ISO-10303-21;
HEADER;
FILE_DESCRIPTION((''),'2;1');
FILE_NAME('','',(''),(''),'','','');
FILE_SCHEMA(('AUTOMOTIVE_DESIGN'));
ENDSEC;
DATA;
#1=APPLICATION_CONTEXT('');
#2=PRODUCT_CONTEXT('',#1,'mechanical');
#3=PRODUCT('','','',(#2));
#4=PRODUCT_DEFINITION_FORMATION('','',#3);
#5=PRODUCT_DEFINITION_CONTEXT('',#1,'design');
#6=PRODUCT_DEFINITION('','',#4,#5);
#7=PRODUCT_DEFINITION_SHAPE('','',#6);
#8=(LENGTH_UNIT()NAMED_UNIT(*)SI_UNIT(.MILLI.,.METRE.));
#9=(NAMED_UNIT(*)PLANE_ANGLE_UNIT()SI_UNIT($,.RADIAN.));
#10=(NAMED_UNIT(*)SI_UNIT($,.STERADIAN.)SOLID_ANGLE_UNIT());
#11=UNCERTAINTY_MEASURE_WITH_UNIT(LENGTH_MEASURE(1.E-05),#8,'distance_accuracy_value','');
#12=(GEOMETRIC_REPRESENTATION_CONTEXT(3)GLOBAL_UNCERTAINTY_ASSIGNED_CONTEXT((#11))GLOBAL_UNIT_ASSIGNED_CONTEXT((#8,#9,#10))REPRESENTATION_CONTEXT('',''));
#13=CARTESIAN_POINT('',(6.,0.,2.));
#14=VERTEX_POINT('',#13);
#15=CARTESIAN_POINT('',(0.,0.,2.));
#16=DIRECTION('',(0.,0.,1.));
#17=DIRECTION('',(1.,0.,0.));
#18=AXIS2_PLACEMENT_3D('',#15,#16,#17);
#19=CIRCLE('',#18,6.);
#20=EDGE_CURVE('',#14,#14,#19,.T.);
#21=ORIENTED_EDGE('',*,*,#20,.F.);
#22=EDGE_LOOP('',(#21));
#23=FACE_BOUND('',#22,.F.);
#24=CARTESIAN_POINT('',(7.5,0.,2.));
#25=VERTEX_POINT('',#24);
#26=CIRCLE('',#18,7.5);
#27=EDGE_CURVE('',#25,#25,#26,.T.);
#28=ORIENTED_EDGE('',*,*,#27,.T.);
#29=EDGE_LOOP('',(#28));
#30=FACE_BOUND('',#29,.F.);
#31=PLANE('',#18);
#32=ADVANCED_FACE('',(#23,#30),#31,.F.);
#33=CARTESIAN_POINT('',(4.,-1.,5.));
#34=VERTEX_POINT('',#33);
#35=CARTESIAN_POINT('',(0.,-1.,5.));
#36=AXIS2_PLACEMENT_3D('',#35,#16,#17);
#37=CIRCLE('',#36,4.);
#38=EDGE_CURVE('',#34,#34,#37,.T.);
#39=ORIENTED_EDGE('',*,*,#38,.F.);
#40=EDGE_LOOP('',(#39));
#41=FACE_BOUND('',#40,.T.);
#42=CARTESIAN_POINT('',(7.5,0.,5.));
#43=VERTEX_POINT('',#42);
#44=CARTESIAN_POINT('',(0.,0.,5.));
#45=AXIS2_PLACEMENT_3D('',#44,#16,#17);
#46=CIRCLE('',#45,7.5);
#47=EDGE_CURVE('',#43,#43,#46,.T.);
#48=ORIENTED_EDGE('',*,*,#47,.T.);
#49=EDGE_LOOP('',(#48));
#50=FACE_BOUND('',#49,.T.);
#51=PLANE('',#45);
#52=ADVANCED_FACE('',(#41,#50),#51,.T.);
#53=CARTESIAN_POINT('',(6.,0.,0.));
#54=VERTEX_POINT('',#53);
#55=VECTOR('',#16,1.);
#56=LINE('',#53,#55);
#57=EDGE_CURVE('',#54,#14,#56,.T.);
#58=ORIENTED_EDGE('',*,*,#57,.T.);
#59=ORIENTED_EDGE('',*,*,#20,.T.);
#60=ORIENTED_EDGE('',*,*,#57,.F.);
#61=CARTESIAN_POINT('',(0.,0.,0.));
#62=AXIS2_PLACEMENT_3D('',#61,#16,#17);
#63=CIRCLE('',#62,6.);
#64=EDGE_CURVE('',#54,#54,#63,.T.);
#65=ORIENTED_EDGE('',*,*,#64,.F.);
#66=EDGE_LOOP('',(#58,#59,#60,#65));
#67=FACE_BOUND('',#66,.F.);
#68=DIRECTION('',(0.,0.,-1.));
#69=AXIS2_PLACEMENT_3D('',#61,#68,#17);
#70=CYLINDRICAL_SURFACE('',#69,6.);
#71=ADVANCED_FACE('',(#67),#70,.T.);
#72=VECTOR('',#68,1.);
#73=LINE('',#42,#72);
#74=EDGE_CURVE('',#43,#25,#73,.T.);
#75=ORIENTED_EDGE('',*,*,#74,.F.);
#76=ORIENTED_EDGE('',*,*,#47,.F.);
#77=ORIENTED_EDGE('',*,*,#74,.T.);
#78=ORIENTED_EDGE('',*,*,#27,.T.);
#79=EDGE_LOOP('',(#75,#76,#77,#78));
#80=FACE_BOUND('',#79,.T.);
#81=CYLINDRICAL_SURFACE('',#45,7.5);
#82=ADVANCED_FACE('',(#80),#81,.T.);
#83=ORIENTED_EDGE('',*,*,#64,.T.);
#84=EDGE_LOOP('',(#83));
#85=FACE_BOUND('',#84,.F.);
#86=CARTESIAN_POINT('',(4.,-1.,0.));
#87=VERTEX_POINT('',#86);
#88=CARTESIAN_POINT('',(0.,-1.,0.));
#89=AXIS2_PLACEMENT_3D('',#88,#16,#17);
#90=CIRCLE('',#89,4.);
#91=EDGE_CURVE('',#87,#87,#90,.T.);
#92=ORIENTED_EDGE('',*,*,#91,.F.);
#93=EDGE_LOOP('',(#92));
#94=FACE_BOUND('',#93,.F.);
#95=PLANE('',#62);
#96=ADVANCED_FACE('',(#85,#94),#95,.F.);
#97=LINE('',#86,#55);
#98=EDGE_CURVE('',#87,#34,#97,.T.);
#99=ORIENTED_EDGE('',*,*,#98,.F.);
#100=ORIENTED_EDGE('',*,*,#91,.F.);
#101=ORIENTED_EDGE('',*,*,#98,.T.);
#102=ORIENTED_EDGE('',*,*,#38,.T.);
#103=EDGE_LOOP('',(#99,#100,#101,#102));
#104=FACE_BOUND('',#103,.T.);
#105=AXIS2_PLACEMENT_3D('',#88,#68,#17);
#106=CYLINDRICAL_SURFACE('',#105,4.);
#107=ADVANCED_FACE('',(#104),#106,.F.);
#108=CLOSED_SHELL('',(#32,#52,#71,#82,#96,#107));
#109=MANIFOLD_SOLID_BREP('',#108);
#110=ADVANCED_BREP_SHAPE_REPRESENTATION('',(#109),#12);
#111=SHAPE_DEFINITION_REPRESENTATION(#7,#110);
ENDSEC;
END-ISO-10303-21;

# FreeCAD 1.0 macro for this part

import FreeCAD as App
import Part
import Sketcher
from FreeCAD import Vector
Q = App.Units.Quantity

doc = App.newDocument("Part")
body = doc.addObject("PartDesign::Body", "Body")

sketch1 = body.newObject("Sketcher::SketchObject", "Sketch")
sketch1.AttachmentSupport = (doc.getObject("XY_Plane"), [""])
sketch1.MapMode = "FlatFace"
sketch1.addGeometry([
    Part.Circle(Vector(0, 0, 0), Vector(0, 0, 1), 6),
    Part.Circle(Vector(0, -1, 0), Vector(0, 0, 1), 4),
], False)
sketch1.addConstraint([
    Sketcher.Constraint("Coincident", 0, 3, -1, 1),
    Sketcher.Constraint("PointOnObject", 1, 3, -2),
    Sketcher.Constraint("Diameter", 0, Q("12 mm")),
    Sketcher.Constraint("Diameter", 1, Q("8 mm")),
    Sketcher.Constraint("DistanceY", 1, 3, -1, 1, Q("1 mm")),
])
pad1 = body.newObject("PartDesign::Pad", "Pad")
pad1.Profile = sketch1
pad1.Length = 5

sketch2 = body.newObject("Sketcher::SketchObject", "Sketch001")
sketch2.AttachmentSupport = (doc.getObject("XY_Plane"), [""])
sketch2.MapMode = "FlatFace"
sketch2.AttachmentOffset = App.Placement(Vector(0, 0, 5), App.Rotation())
sketch2.addGeometry([
    Part.Circle(Vector(0, 0, 0), Vector(0, 0, 1), 8),
    Part.Circle(Vector(0, 0, 0), Vector(0, 0, 1), 6),
], False)
sketch2.addConstraint([
    Sketcher.Constraint("Coincident", 0, 3, -1, 1),
    Sketcher.Constraint("Coincident", 1, 3, -1, 1),
    Sketcher.Constraint("Diameter", 0, Q("15 mm")),
    Sketcher.Constraint("Diameter", 1, Q("12 mm")),
])
pad2 = body.newObject("PartDesign::Pad", "Pad001")
pad2.Profile = sketch2
pad2.Length = 3
pad2.Reversed = True

doc.recompute()
